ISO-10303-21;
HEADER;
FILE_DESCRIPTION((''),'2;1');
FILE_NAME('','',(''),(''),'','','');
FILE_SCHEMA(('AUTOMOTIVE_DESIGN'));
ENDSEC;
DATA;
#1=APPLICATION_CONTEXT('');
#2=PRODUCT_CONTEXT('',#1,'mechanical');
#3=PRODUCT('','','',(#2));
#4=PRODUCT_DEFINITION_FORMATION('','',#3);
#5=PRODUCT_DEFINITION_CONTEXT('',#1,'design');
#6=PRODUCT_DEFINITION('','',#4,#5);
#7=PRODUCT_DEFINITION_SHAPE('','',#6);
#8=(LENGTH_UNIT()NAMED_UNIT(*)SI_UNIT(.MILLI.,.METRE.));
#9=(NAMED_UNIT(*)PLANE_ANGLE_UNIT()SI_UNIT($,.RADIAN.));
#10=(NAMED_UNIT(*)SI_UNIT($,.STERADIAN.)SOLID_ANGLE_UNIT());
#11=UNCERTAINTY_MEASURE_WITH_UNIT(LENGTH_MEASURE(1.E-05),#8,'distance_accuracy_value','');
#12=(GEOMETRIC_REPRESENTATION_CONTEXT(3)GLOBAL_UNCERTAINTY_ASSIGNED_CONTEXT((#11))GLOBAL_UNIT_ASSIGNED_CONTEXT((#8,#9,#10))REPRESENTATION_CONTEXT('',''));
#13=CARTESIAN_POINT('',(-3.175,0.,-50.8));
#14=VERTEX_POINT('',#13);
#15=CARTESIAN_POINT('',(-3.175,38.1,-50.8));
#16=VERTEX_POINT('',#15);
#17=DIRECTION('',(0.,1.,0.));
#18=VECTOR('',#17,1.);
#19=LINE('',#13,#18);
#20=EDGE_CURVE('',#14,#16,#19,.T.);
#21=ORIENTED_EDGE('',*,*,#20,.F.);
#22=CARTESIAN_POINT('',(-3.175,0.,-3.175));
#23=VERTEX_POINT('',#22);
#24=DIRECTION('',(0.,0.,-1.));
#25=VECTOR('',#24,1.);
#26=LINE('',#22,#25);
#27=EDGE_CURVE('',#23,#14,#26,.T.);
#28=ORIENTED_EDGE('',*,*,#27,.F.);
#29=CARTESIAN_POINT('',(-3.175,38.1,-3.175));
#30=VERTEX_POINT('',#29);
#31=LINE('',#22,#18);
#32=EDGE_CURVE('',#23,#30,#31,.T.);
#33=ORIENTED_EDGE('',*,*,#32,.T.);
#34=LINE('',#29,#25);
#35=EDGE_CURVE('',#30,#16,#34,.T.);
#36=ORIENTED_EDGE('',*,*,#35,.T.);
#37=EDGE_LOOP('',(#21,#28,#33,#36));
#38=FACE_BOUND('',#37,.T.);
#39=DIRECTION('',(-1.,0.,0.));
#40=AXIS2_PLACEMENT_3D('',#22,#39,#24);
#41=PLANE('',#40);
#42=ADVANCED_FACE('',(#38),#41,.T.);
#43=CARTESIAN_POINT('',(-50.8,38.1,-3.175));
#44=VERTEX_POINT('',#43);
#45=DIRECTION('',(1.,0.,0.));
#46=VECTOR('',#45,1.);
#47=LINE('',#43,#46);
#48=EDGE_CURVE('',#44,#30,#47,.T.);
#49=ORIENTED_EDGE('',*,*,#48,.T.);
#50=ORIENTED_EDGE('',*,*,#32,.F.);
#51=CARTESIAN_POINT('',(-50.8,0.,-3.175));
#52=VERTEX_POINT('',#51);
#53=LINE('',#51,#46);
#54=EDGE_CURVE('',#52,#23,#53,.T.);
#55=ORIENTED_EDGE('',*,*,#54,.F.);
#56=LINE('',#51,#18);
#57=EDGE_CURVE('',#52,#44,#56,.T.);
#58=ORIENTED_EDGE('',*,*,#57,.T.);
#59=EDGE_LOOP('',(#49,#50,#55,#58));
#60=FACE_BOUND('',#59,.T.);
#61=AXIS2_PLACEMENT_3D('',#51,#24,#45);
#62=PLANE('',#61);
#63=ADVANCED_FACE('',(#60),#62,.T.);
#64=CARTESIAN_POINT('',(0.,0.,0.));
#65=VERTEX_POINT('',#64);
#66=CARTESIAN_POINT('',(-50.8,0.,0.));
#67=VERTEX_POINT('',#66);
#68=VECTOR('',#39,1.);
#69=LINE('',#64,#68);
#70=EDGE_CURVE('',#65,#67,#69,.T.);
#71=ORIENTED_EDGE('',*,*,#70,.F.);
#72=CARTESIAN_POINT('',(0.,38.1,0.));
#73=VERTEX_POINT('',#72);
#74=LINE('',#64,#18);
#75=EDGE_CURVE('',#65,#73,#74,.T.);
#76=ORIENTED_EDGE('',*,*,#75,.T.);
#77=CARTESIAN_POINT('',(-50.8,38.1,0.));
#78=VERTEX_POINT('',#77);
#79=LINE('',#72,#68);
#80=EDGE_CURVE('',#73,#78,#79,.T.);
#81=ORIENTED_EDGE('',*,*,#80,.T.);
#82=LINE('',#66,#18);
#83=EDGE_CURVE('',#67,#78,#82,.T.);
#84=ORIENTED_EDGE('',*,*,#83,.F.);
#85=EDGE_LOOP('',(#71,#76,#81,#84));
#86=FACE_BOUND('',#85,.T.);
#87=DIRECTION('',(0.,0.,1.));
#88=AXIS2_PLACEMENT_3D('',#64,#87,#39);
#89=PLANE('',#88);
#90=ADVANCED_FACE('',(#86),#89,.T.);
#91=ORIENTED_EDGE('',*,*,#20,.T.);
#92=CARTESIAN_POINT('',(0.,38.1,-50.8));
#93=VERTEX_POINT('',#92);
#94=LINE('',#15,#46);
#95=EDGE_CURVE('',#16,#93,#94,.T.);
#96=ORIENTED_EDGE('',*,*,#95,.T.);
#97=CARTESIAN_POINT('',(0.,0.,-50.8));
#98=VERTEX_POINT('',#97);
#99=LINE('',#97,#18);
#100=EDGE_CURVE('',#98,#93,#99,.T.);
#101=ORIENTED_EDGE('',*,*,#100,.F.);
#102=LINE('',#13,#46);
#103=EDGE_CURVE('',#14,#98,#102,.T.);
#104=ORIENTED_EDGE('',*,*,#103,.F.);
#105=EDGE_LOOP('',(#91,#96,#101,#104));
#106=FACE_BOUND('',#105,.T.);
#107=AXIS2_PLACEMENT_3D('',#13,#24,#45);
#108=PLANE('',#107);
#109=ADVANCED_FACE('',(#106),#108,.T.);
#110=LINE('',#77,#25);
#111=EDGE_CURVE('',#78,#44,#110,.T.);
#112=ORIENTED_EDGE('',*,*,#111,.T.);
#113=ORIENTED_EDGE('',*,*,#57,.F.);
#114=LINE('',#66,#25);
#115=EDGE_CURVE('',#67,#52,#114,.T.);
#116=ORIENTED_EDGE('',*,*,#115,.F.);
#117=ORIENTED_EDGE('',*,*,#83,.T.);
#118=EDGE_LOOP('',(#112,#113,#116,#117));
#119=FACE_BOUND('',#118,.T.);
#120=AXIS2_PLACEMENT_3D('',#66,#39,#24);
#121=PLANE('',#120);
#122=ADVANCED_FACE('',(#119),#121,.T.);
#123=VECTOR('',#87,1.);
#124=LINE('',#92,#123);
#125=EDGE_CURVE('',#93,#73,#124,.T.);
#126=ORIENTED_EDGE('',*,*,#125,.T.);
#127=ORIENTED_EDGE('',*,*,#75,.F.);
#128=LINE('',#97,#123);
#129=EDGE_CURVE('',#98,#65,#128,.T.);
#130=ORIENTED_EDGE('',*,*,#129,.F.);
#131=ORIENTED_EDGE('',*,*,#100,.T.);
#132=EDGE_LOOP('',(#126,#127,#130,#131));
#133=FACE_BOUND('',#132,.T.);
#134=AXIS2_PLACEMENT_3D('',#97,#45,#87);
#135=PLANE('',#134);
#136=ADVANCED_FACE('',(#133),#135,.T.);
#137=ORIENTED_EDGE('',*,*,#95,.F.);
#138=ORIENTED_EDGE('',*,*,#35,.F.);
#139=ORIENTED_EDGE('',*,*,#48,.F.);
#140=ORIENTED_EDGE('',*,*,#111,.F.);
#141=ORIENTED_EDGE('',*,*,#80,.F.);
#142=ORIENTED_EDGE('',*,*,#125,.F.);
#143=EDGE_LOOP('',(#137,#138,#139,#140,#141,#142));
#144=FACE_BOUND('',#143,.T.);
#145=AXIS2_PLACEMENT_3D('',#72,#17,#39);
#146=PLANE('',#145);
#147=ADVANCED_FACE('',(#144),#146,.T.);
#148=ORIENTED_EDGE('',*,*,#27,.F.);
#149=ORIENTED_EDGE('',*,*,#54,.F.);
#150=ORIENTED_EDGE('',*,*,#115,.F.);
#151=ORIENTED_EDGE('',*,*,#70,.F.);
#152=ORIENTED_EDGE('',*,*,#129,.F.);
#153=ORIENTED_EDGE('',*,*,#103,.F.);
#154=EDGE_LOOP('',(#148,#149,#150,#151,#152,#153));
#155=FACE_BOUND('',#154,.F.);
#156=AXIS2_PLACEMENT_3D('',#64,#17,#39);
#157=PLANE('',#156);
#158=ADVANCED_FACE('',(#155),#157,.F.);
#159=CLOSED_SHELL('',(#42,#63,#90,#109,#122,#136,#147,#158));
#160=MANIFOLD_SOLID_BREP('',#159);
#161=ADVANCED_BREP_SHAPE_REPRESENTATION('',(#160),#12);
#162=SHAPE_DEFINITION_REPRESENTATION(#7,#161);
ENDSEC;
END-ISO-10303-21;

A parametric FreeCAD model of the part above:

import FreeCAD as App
import Part
import Sketcher
from FreeCAD import Vector
Q = App.Units.Quantity


def add_polygon(sketch, points):
    """Adds a closed chain of lines whose ends are joined by coincident constraints."""
    first, n = sketch.GeometryCount, len(points)
    for a, b in zip(points, points[1:] + points[:1]):
        sketch.addGeometry(Part.LineSegment(App.Vector(*a, 0), App.Vector(*b, 0)), False)
    for i in range(n):
        sketch.addConstraint(Sketcher.Constraint("Coincident", first + i, 2, first + (i + 1) % n, 1))

doc = App.newDocument("Part")
params = doc.addObject("Spreadsheet::Sheet", "Params")
for row, (alias, value) in enumerate([
    ("sketch1_width", "2 in"),
    ("sketch1_width2", "0.125 in"),
    ("pad1_length", "1.5 in"),
], start=1):
    params.set(f"A{row}", alias)
    params.set(f"B{row}", "=" + value)
    params.setAlias(f"B{row}", alias)

body = doc.addObject("PartDesign::Body", "Body")

# Sketch on XZ plane
sketch1 = body.newObject("Sketcher::SketchObject", "Sketch")
sketch1.AttachmentSupport = (doc.getObject("XZ_Plane"), [""])
sketch1.MapMode = "FlatFace"
add_polygon(sketch1, [(-50.8, 0), (0, 0), (0, -50.8), (-3.2, -50.8), (-3.2, -3.2), (-50.8, -3.2)])  # lines 0-5
sketch1.addConstraint(Sketcher.Constraint("Horizontal", 0))
sketch1.addConstraint(Sketcher.Constraint("Vertical", 1))
sketch1.addConstraint(Sketcher.Constraint("Horizontal", 2))
sketch1.addConstraint(Sketcher.Constraint("Vertical", 3))
sketch1.addConstraint(Sketcher.Constraint("Horizontal", 4))
sketch1.addConstraint(Sketcher.Constraint("Vertical", 5))
sketch1.addConstraint(Sketcher.Constraint("Coincident", 0, 2, -1, 1))
sketch1.addConstraint(Sketcher.Constraint("Equal", 0, 1))
sketch1.addConstraint(Sketcher.Constraint("Equal", 4, 3))
sketch1.addConstraint(Sketcher.Constraint("DistanceX", 0, 1, 0, 2, Q("2 in")))
sketch1.addConstraint(Sketcher.Constraint("DistanceX", 2, 2, 2, 1, Q("0.125 in")))
sketch1.setExpression("Constraints[15]", "Params.sketch1_width")
sketch1.setExpression("Constraints[16]", "Params.sketch1_width2")
pad1 = body.newObject("PartDesign::Pad", "Pad")
pad1.Profile = sketch1
pad1.setExpression("Length", "Params.pad1_length")
pad1.Reversed = True

doc.recompute()
